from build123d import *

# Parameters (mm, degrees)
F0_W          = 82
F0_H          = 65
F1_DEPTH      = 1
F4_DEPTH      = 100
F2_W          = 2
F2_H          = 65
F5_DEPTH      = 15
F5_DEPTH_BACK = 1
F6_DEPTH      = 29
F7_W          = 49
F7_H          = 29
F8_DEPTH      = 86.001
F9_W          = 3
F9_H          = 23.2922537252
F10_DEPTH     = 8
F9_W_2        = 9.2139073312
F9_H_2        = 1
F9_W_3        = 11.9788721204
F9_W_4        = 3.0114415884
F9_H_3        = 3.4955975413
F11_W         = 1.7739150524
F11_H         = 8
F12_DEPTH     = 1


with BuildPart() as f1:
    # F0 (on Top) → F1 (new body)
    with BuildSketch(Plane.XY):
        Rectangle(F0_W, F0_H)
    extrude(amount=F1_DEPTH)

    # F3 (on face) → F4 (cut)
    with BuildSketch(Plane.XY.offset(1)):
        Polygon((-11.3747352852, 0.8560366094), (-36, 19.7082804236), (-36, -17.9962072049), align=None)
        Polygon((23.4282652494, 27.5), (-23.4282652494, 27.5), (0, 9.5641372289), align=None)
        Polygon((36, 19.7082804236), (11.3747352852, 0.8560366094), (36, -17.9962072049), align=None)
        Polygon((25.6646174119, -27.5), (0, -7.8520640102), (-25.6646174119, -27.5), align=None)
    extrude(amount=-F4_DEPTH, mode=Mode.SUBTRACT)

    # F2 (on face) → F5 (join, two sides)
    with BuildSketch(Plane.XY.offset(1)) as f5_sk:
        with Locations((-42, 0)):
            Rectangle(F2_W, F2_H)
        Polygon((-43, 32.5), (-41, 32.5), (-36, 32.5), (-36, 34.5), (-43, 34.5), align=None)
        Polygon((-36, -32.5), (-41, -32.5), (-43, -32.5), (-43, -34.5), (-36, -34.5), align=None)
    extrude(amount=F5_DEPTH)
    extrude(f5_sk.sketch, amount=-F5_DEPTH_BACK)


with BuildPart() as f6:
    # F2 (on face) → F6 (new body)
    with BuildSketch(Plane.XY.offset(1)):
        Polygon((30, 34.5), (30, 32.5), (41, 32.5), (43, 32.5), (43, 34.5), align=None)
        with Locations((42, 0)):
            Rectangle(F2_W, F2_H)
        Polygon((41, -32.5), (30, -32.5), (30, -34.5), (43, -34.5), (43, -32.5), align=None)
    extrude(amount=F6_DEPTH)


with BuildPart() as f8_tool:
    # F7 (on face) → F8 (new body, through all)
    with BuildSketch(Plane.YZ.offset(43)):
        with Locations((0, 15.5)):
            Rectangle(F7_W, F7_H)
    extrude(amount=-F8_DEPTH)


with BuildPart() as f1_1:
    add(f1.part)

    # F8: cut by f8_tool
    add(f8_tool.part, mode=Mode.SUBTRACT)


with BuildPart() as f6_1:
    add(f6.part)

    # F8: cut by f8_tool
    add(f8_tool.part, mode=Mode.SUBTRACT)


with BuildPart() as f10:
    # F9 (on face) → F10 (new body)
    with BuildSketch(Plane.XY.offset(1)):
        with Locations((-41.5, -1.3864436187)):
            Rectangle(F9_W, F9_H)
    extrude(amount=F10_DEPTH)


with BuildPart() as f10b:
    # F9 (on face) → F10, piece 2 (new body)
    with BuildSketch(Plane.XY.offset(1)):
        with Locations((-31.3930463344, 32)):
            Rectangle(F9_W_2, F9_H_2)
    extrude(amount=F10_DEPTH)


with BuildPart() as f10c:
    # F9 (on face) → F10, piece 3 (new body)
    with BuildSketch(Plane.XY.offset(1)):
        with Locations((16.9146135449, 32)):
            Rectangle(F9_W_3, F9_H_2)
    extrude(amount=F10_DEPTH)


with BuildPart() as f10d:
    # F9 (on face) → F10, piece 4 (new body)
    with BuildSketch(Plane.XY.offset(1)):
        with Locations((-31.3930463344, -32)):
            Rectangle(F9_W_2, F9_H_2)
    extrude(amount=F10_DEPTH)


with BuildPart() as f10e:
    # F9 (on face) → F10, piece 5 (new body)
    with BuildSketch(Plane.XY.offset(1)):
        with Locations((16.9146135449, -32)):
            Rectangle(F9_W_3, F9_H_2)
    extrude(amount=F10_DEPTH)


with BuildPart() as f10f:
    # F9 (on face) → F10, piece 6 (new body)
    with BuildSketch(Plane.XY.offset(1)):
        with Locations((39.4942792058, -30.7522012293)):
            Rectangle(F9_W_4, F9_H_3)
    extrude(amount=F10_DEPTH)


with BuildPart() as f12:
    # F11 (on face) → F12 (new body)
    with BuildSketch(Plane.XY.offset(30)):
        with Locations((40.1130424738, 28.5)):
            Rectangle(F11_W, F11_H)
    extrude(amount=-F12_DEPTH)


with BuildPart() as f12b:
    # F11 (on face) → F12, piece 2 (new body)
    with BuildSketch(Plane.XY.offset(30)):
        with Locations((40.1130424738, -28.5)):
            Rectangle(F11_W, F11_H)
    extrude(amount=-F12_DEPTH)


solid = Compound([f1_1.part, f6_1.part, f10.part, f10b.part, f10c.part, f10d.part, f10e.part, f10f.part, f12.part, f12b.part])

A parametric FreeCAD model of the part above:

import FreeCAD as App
import Part
import Sketcher
from FreeCAD import Vector
Q = App.Units.Quantity

doc = App.newDocument("Part")
body = doc.addObject("PartDesign::Body", "Body")

# Sketch on XY plane
sketch1 = doc.addObject("Sketcher::SketchObject", "Sketch")
body.addObject(sketch1)
sketch1.AttachmentSupport = (doc.XY_Plane, [""])
sketch1.MapMode = "FlatFace"
sketch1.addGeometry([
    Part.LineSegment(Vector(-41, 32, 0), Vector(-41, -32, 0)),
    Part.LineSegment(Vector(-41, -32, 0), Vector(41, -32, 0)),
    Part.LineSegment(Vector(41, -32, 0), Vector(41, 32, 0)),
    Part.LineSegment(Vector(41, 32, 0), Vector(-41, 32, 0)),
], False)
sketch1.addConstraint([
    Sketcher.Constraint("Coincident", 0, 2, 1, 1),
    Sketcher.Constraint("Coincident", 1, 2, 2, 1),
    Sketcher.Constraint("Coincident", 2, 2, 3, 1),
    Sketcher.Constraint("Coincident", 3, 2, 0, 1),
    Sketcher.Constraint("Vertical", 0),
    Sketcher.Constraint("Horizontal", 1),
    Sketcher.Constraint("Vertical", 2),
    Sketcher.Constraint("Horizontal", 3),
    Sketcher.Constraint("Symmetric", 0, 2, 2, 2, -1, 1),
    Sketcher.Constraint("DistanceX", 1, 1, 1, 2, Q("82 mm")),
    Sketcher.Constraint("DistanceY", 0, 2, 0, 1, Q("65 mm")),
])
pad1 = doc.addObject("PartDesign::Pad", "Pad")
body.addObject(pad1)
pad1.Profile = sketch1
pad1.Length = 1

# Sketch on XY plane
sketch2 = doc.addObject("Sketcher::SketchObject", "Sketch001")
body.addObject(sketch2)
sketch2.AttachmentSupport = (doc.XY_Plane, [""])
sketch2.MapMode = "FlatFace"
sketch2.AttachmentOffset = App.Placement(Vector(0, 0, 1), App.Rotation())
sketch2.addGeometry([
    Part.LineSegment(Vector(-11, 1, 0), Vector(-36, 20, 0)),  # 0
    Part.LineSegment(Vector(-36, 20, 0), Vector(-36, -18, 0)),  # 1
    Part.LineSegment(Vector(-36, -18, 0), Vector(-11, 1, 0)),  # 2
    Part.LineSegment(Vector(23, 28, 0), Vector(-23, 28, 0)),  # 3
    Part.LineSegment(Vector(-23, 28, 0), Vector(0, 10, 0)),  # 4
    Part.LineSegment(Vector(0, 10, 0), Vector(23, 28, 0)),  # 5
    Part.LineSegment(Vector(36, 20, 0), Vector(11, 1, 0)),  # 6
    Part.LineSegment(Vector(11, 1, 0), Vector(36, -18, 0)),  # 7
    Part.LineSegment(Vector(36, -18, 0), Vector(36, 20, 0)),  # 8
    Part.LineSegment(Vector(26, -28, 0), Vector(0, -8, 0)),  # 9
    Part.LineSegment(Vector(0, -8, 0), Vector(-26, -28, 0)),  # 10
    Part.LineSegment(Vector(-26, -28, 0), Vector(26, -28, 0)),  # 11
], False)
sketch2.addConstraint([
    Sketcher.Constraint("Coincident", 0, 2, 1, 1),
    Sketcher.Constraint("Coincident", 1, 2, 2, 1),
    Sketcher.Constraint("Coincident", 2, 2, 0, 1),
    Sketcher.Constraint("Coincident", 3, 2, 4, 1),
    Sketcher.Constraint("Coincident", 4, 2, 5, 1),
    Sketcher.Constraint("Coincident", 5, 2, 3, 1),
    Sketcher.Constraint("Coincident", 6, 2, 7, 1),
    Sketcher.Constraint("Coincident", 7, 2, 8, 1),
    Sketcher.Constraint("Coincident", 8, 2, 6, 1),
    Sketcher.Constraint("Coincident", 9, 2, 10, 1),
    Sketcher.Constraint("Coincident", 10, 2, 11, 1),
    Sketcher.Constraint("Coincident", 11, 2, 9, 1),
    Sketcher.Constraint("Vertical", 1),
    Sketcher.Constraint("Horizontal", 3),
    Sketcher.Constraint("Vertical", 8),
    Sketcher.Constraint("Horizontal", 11),
    Sketcher.Constraint("Symmetric", 2, 2, 6, 2, -2),
    Sketcher.Constraint("Symmetric", 1, 2, 7, 2, -2),
    Sketcher.Constraint("PointOnObject", 4, 2, -2),
    Sketcher.Constraint("PointOnObject", 9, 2, -2),
    Sketcher.Constraint("Parallel", 0, 4),
    Sketcher.Constraint("Parallel", 2, 5),
    Sketcher.Constraint("Parallel", 5, 6),
    Sketcher.Constraint("Parallel", 4, 7),
    Sketcher.Constraint("Parallel", 7, 9),
    Sketcher.Constraint("Parallel", 6, 10),
    Sketcher.Constraint("DistanceX", 0, 2, -1, 1, Q("36 mm")),
    Sketcher.Constraint("DistanceY", -1, 1, 3, 2, Q("27.5 mm")),
    Sketcher.Constraint("DistanceY", 10, 2, -1, 1, Q("27.5 mm")),
    Sketcher.Constraint("DistanceX", 2, 2, 5, 2, Q("34.803001 mm")),
    Sketcher.Constraint("DistanceX", 3, 2, 3, 1, Q("46.85653 mm")),
    Sketcher.Constraint("DistanceY", 2, 2, 4, 2, Q("8.708101 mm")),
    Sketcher.Constraint("DistanceY", 9, 2, 2, 2, Q("8.708101 mm")),
    Sketcher.Constraint("DistanceX", 11, 1, 11, 2, Q("51.329235 mm")),
])
pocket1 = doc.addObject("PartDesign::Pocket", "Pocket")
body.addObject(pocket1)
pocket1.Profile = sketch2
pocket1.Length = 100

# Sketch on XY plane
sketch3 = doc.addObject("Sketcher::SketchObject", "Sketch002")
body.addObject(sketch3)
sketch3.AttachmentSupport = (doc.XY_Plane, [""])
sketch3.MapMode = "FlatFace"
sketch3.AttachmentOffset = App.Placement(Vector(0, 0, 1), App.Rotation())
sketch3.addGeometry([
    Part.LineSegment(Vector(-41, -32.5, 0), Vector(-41, 32.5, 0)),  # 0
    Part.LineSegment(Vector(-41, 32.5, 0), Vector(-36, 32.5, 0)),  # 1
    Part.LineSegment(Vector(-36, 32.5, 0), Vector(-36, 34.5, 0)),  # 2
    Part.LineSegment(Vector(-36, 34.5, 0), Vector(-43, 34.5, 0)),  # 3
    Part.LineSegment(Vector(-43, 34.5, 0), Vector(-43, -34.5, 0)),  # 4
    Part.LineSegment(Vector(-43, -34.5, 0), Vector(-36, -34.5, 0)),  # 5
    Part.LineSegment(Vector(-36, -34.5, 0), Vector(-36, -32.5, 0)),  # 6
    Part.LineSegment(Vector(-36, -32.5, 0), Vector(-41, -32.5, 0)),  # 7
], False)
sketch3.addConstraint([
    Sketcher.Constraint("Coincident", 0, 2, 1, 1),
    Sketcher.Constraint("Coincident", 1, 2, 2, 1),
    Sketcher.Constraint("Coincident", 2, 2, 3, 1),
    Sketcher.Constraint("Coincident", 3, 2, 4, 1),
    Sketcher.Constraint("Coincident", 4, 2, 5, 1),
    Sketcher.Constraint("Coincident", 5, 2, 6, 1),
    Sketcher.Constraint("Coincident", 6, 2, 7, 1),
    Sketcher.Constraint("Coincident", 7, 2, 0, 1),
    Sketcher.Constraint("Vertical", 0),
    Sketcher.Constraint("Horizontal", 1),
    Sketcher.Constraint("Vertical", 2),
    Sketcher.Constraint("Horizontal", 3),
    Sketcher.Constraint("Vertical", 4),
    Sketcher.Constraint("Horizontal", 5),
    Sketcher.Constraint("Vertical", 6),
    Sketcher.Constraint("Horizontal", 7),
    Sketcher.Constraint("Symmetric", 2, 2, 5, 2, -1),
    Sketcher.Constraint("Equal", 2, 6),
    Sketcher.Constraint("DistanceX", 1, 1, 1, 2, Q("5 mm")),
    Sketcher.Constraint("DistanceX", 3, 2, 3, 1, Q("7 mm")),
    Sketcher.Constraint("DistanceY", 0, 1, 0, 2, Q("65 mm")),
    Sketcher.Constraint("DistanceY", 2, 1, 2, 2, Q("2 mm")),
    Sketcher.Constraint("DistanceX", 0, 2, -1, 1, Q("41 mm")),
])
pad2 = doc.addObject("PartDesign::Pad", "Pad001")
body.addObject(pad2)
pad2.Profile = sketch3
pad2.Type = "TwoLengths"
pad2.Length = 15
pad2.Length2 = 1
body2 = doc.addObject("PartDesign::Body", "Body001")

# Sketch on XY plane
sketch4 = doc.addObject("Sketcher::SketchObject", "Sketch003")
body2.addObject(sketch4)
sketch4.AttachmentSupport = (doc.getObject("XY_Plane001"), [""])
sketch4.MapMode = "FlatFace"
sketch4.AttachmentOffset = App.Placement(Vector(0, 0, 1), App.Rotation())
sketch4.addGeometry([
    Part.LineSegment(Vector(30, 34.5, 0), Vector(30, 32.5, 0)),  # 0
    Part.LineSegment(Vector(30, 32.5, 0), Vector(41, 32.5, 0)),  # 1
    Part.LineSegment(Vector(41, 32.5, 0), Vector(41, -32.5, 0)),  # 2
    Part.LineSegment(Vector(41, -32.5, 0), Vector(30, -32.5, 0)),  # 3
    Part.LineSegment(Vector(30, -32.5, 0), Vector(30, -34.5, 0)),  # 4
    Part.LineSegment(Vector(30, -34.5, 0), Vector(43, -34.5, 0)),  # 5
    Part.LineSegment(Vector(43, -34.5, 0), Vector(43, 34.5, 0)),  # 6
    Part.LineSegment(Vector(43, 34.5, 0), Vector(30, 34.5, 0)),  # 7
], False)
sketch4.addConstraint([
    Sketcher.Constraint("Coincident", 0, 2, 1, 1),
    Sketcher.Constraint("Coincident", 1, 2, 2, 1),
    Sketcher.Constraint("Coincident", 2, 2, 3, 1),
    Sketcher.Constraint("Coincident", 3, 2, 4, 1),
    Sketcher.Constraint("Coincident", 4, 2, 5, 1),
    Sketcher.Constraint("Coincident", 5, 2, 6, 1),
    Sketcher.Constraint("Coincident", 6, 2, 7, 1),
    Sketcher.Constraint("Coincident", 7, 2, 0, 1),
    Sketcher.Constraint("Vertical", 0),
    Sketcher.Constraint("Horizontal", 1),
    Sketcher.Constraint("Vertical", 2),
    Sketcher.Constraint("Horizontal", 3),
    Sketcher.Constraint("Vertical", 4),
    Sketcher.Constraint("Horizontal", 5),
    Sketcher.Constraint("Vertical", 6),
    Sketcher.Constraint("Horizontal", 7),
    Sketcher.Constraint("Symmetric", 0, 2, 3, 2, -1),
    Sketcher.Constraint("Equal", 0, 4),
    Sketcher.Constraint("DistanceX", 1, 1, 1, 2, Q("11 mm")),
    Sketcher.Constraint("DistanceX", 5, 1, 5, 2, Q("13 mm")),
    Sketcher.Constraint("DistanceY", 0, 2, 0, 1, Q("2 mm")),
    Sketcher.Constraint("DistanceY", 2, 2, 2, 1, Q("65 mm")),
    Sketcher.Constraint("DistanceX", -1, 1, 0, 2, Q("30 mm")),
])
pad3 = doc.addObject("PartDesign::Pad", "Pad002")
body2.addObject(pad3)
pad3.Profile = sketch4
pad3.Length = 29
body3 = doc.addObject("PartDesign::Body", "Body002")

# Sketch on YZ plane
sketch5 = doc.addObject("Sketcher::SketchObject", "Sketch004")
body3.addObject(sketch5)
sketch5.AttachmentSupport = (doc.getObject("YZ_Plane002"), [""])
sketch5.MapMode = "FlatFace"
sketch5.AttachmentOffset = App.Placement(Vector(0, 0, 43), App.Rotation())
sketch5.addGeometry([
    Part.LineSegment(Vector(-24, 30, 0), Vector(-24, 1, 0)),
    Part.LineSegment(Vector(-24, 1, 0), Vector(24, 1, 0)),
    Part.LineSegment(Vector(24, 1, 0), Vector(24, 30, 0)),
    Part.LineSegment(Vector(24, 30, 0), Vector(-24, 30, 0)),
], False)
sketch5.addConstraint([
    Sketcher.Constraint("Coincident", 0, 2, 1, 1),
    Sketcher.Constraint("Coincident", 1, 2, 2, 1),
    Sketcher.Constraint("Coincident", 2, 2, 3, 1),
    Sketcher.Constraint("Coincident", 3, 2, 0, 1),
    Sketcher.Constraint("Vertical", 0),
    Sketcher.Constraint("Horizontal", 1),
    Sketcher.Constraint("Vertical", 2),
    Sketcher.Constraint("Horizontal", 3),
    Sketcher.Constraint("DistanceX", 1, 1, 1, 2, Q("49 mm")),
    Sketcher.Constraint("DistanceY", 0, 2, 0, 1, Q("29 mm")),
    Sketcher.Constraint("DistanceY", -1, 1, 0, 2, Q("1 mm")),
    Sketcher.Constraint("DistanceX", 0, 2, -1, 1, Q("24.5 mm")),
])
pad4 = doc.addObject("PartDesign::Pad", "Pad003")
body3.addObject(pad4)
pad4.Profile = sketch5
pad4.Length = 86.001
pad4.Reversed = True
doc.recompute()

body4 = doc.addObject("PartDesign::Body", "Body003")
body4.BaseFeature = body3
boolean = doc.addObject("PartDesign::Boolean", "Boolean")
body.addObject(boolean)
boolean.Type = "Cut"
boolean.addObjects([body4])
doc.recompute()
body2.AllowCompound = True
doc.recompute()

boolean2 = doc.addObject("PartDesign::Boolean", "Boolean001")
body2.addObject(boolean2)
boolean2.Type = "Cut"
boolean2.addObjects([body3])
body5 = doc.addObject("PartDesign::Body", "Body004")

# Sketch on XY plane
sketch6 = doc.addObject("Sketcher::SketchObject", "Sketch005")
body5.addObject(sketch6)
sketch6.AttachmentSupport = (doc.getObject("XY_Plane004"), [""])
sketch6.MapMode = "FlatFace"
sketch6.AttachmentOffset = App.Placement(Vector(0, 0, 1), App.Rotation())
sketch6.addGeometry([
    Part.LineSegment(Vector(-43, 10.3, 0), Vector(-43, -13, 0)),
    Part.LineSegment(Vector(-43, -13, 0), Vector(-40, -13, 0)),
    Part.LineSegment(Vector(-40, -13, 0), Vector(-40, 10.3, 0)),
    Part.LineSegment(Vector(-40, 10.3, 0), Vector(-43, 10.3, 0)),
], False)
sketch6.addConstraint([
    Sketcher.Constraint("Coincident", 0, 2, 1, 1),
    Sketcher.Constraint("Coincident", 1, 2, 2, 1),
    Sketcher.Constraint("Coincident", 2, 2, 3, 1),
    Sketcher.Constraint("Coincident", 3, 2, 0, 1),
    Sketcher.Constraint("Vertical", 0),
    Sketcher.Constraint("Horizontal", 1),
    Sketcher.Constraint("Vertical", 2),
    Sketcher.Constraint("Horizontal", 3),
    Sketcher.Constraint("DistanceX", 1, 1, 1, 2, Q("3 mm")),
    Sketcher.Constraint("DistanceX", 0, 2, -1, 1, Q("43 mm")),
    Sketcher.Constraint("DistanceY", 0, 2, 0, 1, Q("23.292254 mm")),
    Sketcher.Constraint("DistanceY", 0, 2, -1, 1, Q("13.03257 mm")),
])
pad5 = doc.addObject("PartDesign::Pad", "Pad004")
body5.addObject(pad5)
pad5.Profile = sketch6
pad5.Length = 8
body6 = doc.addObject("PartDesign::Body", "Body005")

# Sketch on XY plane
sketch7 = doc.addObject("Sketcher::SketchObject", "Sketch006")
body6.addObject(sketch7)
sketch7.AttachmentSupport = (doc.getObject("XY_Plane005"), [""])
sketch7.MapMode = "FlatFace"
sketch7.AttachmentOffset = App.Placement(Vector(0, 0, 1), App.Rotation())
sketch7.addGeometry([
    Part.LineSegment(Vector(-36, 32.5, 0), Vector(-36, 31.5, 0)),
    Part.LineSegment(Vector(-36, 31.5, 0), Vector(-26.8, 31.5, 0)),
    Part.LineSegment(Vector(-26.8, 31.5, 0), Vector(-26.8, 32.5, 0)),
    Part.LineSegment(Vector(-26.8, 32.5, 0), Vector(-36, 32.5, 0)),
], False)
sketch7.addConstraint([
    Sketcher.Constraint("Coincident", 0, 2, 1, 1),
    Sketcher.Constraint("Coincident", 1, 2, 2, 1),
    Sketcher.Constraint("Coincident", 2, 2, 3, 1),
    Sketcher.Constraint("Coincident", 3, 2, 0, 1),
    Sketcher.Constraint("Vertical", 0),
    Sketcher.Constraint("Horizontal", 1),
    Sketcher.Constraint("Vertical", 2),
    Sketcher.Constraint("Horizontal", 3),
    Sketcher.Constraint("DistanceY", 0, 2, 0, 1, Q("1 mm")),
    Sketcher.Constraint("DistanceX", 0, 2, -1, 1, Q("36 mm")),
    Sketcher.Constraint("DistanceY", -1, 1, 0, 2, Q("31.5 mm")),
    Sketcher.Constraint("DistanceX", 1, 1, 1, 2, Q("9.213907 mm")),
])
pad6 = doc.addObject("PartDesign::Pad", "Pad005")
body6.addObject(pad6)
pad6.Profile = sketch7
pad6.Length = 8
body7 = doc.addObject("PartDesign::Body", "Body006")

# Sketch on XY plane
sketch8 = doc.addObject("Sketcher::SketchObject", "Sketch007")
body7.addObject(sketch8)
sketch8.AttachmentSupport = (doc.getObject("XY_Plane006"), [""])
sketch8.MapMode = "FlatFace"
sketch8.AttachmentOffset = App.Placement(Vector(0, 0, 1), App.Rotation())
sketch8.addGeometry([
    Part.LineSegment(Vector(10.9, 32.5, 0), Vector(10.9, 31.5, 0)),
    Part.LineSegment(Vector(10.9, 31.5, 0), Vector(22.9, 31.5, 0)),
    Part.LineSegment(Vector(22.9, 31.5, 0), Vector(22.9, 32.5, 0)),
    Part.LineSegment(Vector(22.9, 32.5, 0), Vector(10.9, 32.5, 0)),
], False)
sketch8.addConstraint([
    Sketcher.Constraint("Coincident", 0, 2, 1, 1),
    Sketcher.Constraint("Coincident", 1, 2, 2, 1),
    Sketcher.Constraint("Coincident", 2, 2, 3, 1),
    Sketcher.Constraint("Coincident", 3, 2, 0, 1),
    Sketcher.Constraint("Vertical", 0),
    Sketcher.Constraint("Horizontal", 1),
    Sketcher.Constraint("Vertical", 2),
    Sketcher.Constraint("Horizontal", 3),
    Sketcher.Constraint("DistanceY", 0, 2, 0, 1, Q("1 mm")),
    Sketcher.Constraint("DistanceY", -1, 1, 0, 2, Q("31.5 mm")),
    Sketcher.Constraint("DistanceX", 1, 1, 1, 2, Q("11.978872 mm")),
    Sketcher.Constraint("DistanceX", -1, 1, 1, 2, Q("22.90405 mm")),
])
pad7 = doc.addObject("PartDesign::Pad", "Pad006")
body7.addObject(pad7)
pad7.Profile = sketch8
pad7.Length = 8
body8 = doc.addObject("PartDesign::Body", "Body007")

# Sketch on XY plane
sketch9 = doc.addObject("Sketcher::SketchObject", "Sketch008")
body8.addObject(sketch9)
sketch9.AttachmentSupport = (doc.getObject("XY_Plane007"), [""])
sketch9.MapMode = "FlatFace"
sketch9.AttachmentOffset = App.Placement(Vector(0, 0, 1), App.Rotation())
sketch9.addGeometry([
    Part.LineSegment(Vector(-36, -31.5, 0), Vector(-36, -32.5, 0)),
    Part.LineSegment(Vector(-36, -32.5, 0), Vector(-26.8, -32.5, 0)),
    Part.LineSegment(Vector(-26.8, -32.5, 0), Vector(-26.8, -31.5, 0)),
    Part.LineSegment(Vector(-26.8, -31.5, 0), Vector(-36, -31.5, 0)),
], False)
sketch9.addConstraint([
    Sketcher.Constraint("Coincident", 0, 2, 1, 1),
    Sketcher.Constraint("Coincident", 1, 2, 2, 1),
    Sketcher.Constraint("Coincident", 2, 2, 3, 1),
    Sketcher.Constraint("Coincident", 3, 2, 0, 1),
    Sketcher.Constraint("Vertical", 0),
    Sketcher.Constraint("Horizontal", 1),
    Sketcher.Constraint("Vertical", 2),
    Sketcher.Constraint("Horizontal", 3),
    Sketcher.Constraint("DistanceY", 0, 2, 0, 1, Q("1 mm")),
    Sketcher.Constraint("DistanceX", 0, 2, -1, 1, Q("36 mm")),
    Sketcher.Constraint("DistanceY", 0, 2, -1, 1, Q("32.5 mm")),
    Sketcher.Constraint("DistanceX", 1, 1, 1, 2, Q("9.213907 mm")),
])
pad8 = doc.addObject("PartDesign::Pad", "Pad007")
body8.addObject(pad8)
pad8.Profile = sketch9
pad8.Length = 8
body9 = doc.addObject("PartDesign::Body", "Body008")

# Sketch on XY plane
sketch10 = doc.addObject("Sketcher::SketchObject", "Sketch009")
body9.addObject(sketch10)
sketch10.AttachmentSupport = (doc.getObject("XY_Plane008"), [""])
sketch10.MapMode = "FlatFace"
sketch10.AttachmentOffset = App.Placement(Vector(0, 0, 1), App.Rotation())
sketch10.addGeometry([
    Part.LineSegment(Vector(10.9, -31.5, 0), Vector(10.9, -32.5, 0)),
    Part.LineSegment(Vector(10.9, -32.5, 0), Vector(22.9, -32.5, 0)),
    Part.LineSegment(Vector(22.9, -32.5, 0), Vector(22.9, -31.5, 0)),
    Part.LineSegment(Vector(22.9, -31.5, 0), Vector(10.9, -31.5, 0)),
], False)
sketch10.addConstraint([
    Sketcher.Constraint("Coincident", 0, 2, 1, 1),
    Sketcher.Constraint("Coincident", 1, 2, 2, 1),
    Sketcher.Constraint("Coincident", 2, 2, 3, 1),
    Sketcher.Constraint("Coincident", 3, 2, 0, 1),
    Sketcher.Constraint("Vertical", 0),
    Sketcher.Constraint("Horizontal", 1),
    Sketcher.Constraint("Vertical", 2),
    Sketcher.Constraint("Horizontal", 3),
    Sketcher.Constraint("DistanceY", 0, 2, 0, 1, Q("1 mm")),
    Sketcher.Constraint("DistanceY", 0, 2, -1, 1, Q("32.5 mm")),
    Sketcher.Constraint("DistanceX", 1, 1, 1, 2, Q("11.978872 mm")),
    Sketcher.Constraint("DistanceX", -1, 1, 1, 2, Q("22.90405 mm")),
])
pad9 = doc.addObject("PartDesign::Pad", "Pad008")
body9.addObject(pad9)
pad9.Profile = sketch10
pad9.Length = 8
body10 = doc.addObject("PartDesign::Body", "Body009")

# Sketch on XY plane
sketch11 = doc.addObject("Sketcher::SketchObject", "Sketch010")
body10.addObject(sketch11)
sketch11.AttachmentSupport = (doc.getObject("XY_Plane009"), [""])
sketch11.MapMode = "FlatFace"
sketch11.AttachmentOffset = App.Placement(Vector(0, 0, 1), App.Rotation())
sketch11.addGeometry([
    Part.LineSegment(Vector(38, -29, 0), Vector(38, -32.5, 0)),
    Part.LineSegment(Vector(38, -32.5, 0), Vector(41, -32.5, 0)),
    Part.LineSegment(Vector(41, -32.5, 0), Vector(41, -29, 0)),
    Part.LineSegment(Vector(41, -29, 0), Vector(38, -29, 0)),
], False)
sketch11.addConstraint([
    Sketcher.Constraint("Coincident", 0, 2, 1, 1),
    Sketcher.Constraint("Coincident", 1, 2, 2, 1),
    Sketcher.Constraint("Coincident", 2, 2, 3, 1),
    Sketcher.Constraint("Coincident", 3, 2, 0, 1),
    Sketcher.Constraint("Vertical", 0),
    Sketcher.Constraint("Horizontal", 1),
    Sketcher.Constraint("Vertical", 2),
    Sketcher.Constraint("Horizontal", 3),
    Sketcher.Constraint("DistanceX", -1, 1, 1, 2, Q("41 mm")),
    Sketcher.Constraint("DistanceY", 0, 2, -1, 1, Q("32.5 mm")),
    Sketcher.Constraint("DistanceX", 1, 1, 1, 2, Q("3.011442 mm")),
    Sketcher.Constraint("DistanceY", 0, 2, 0, 1, Q("3.495598 mm")),
])
pad10 = doc.addObject("PartDesign::Pad", "Pad009")
body10.addObject(pad10)
pad10.Profile = sketch11
pad10.Length = 8
body11 = doc.addObject("PartDesign::Body", "Body010")

# Sketch on XY plane
sketch12 = doc.addObject("Sketcher::SketchObject", "Sketch011")
body11.addObject(sketch12)
sketch12.AttachmentSupport = (doc.getObject("XY_Plane010"), [""])
sketch12.MapMode = "FlatFace"
sketch12.AttachmentOffset = App.Placement(Vector(0, 0, 30), App.Rotation())
sketch12.addGeometry([
    Part.LineSegment(Vector(39.2, 32.5, 0), Vector(39.2, 24.5, 0)),
    Part.LineSegment(Vector(39.2, 24.5, 0), Vector(41, 24.5, 0)),
    Part.LineSegment(Vector(41, 24.5, 0), Vector(41, 32.5, 0)),
    Part.LineSegment(Vector(41, 32.5, 0), Vector(39.2, 32.5, 0)),
], False)
sketch12.addConstraint([
    Sketcher.Constraint("Coincident", 0, 2, 1, 1),
    Sketcher.Constraint("Coincident", 1, 2, 2, 1),
    Sketcher.Constraint("Coincident", 2, 2, 3, 1),
    Sketcher.Constraint("Coincident", 3, 2, 0, 1),
    Sketcher.Constraint("Vertical", 0),
    Sketcher.Constraint("Horizontal", 1),
    Sketcher.Constraint("Vertical", 2),
    Sketcher.Constraint("Horizontal", 3),
    Sketcher.Constraint("DistanceY", 0, 2, 0, 1, Q("8 mm")),
    Sketcher.Constraint("DistanceX", -1, 1, 1, 2, Q("41 mm")),
    Sketcher.Constraint("DistanceY", -1, 1, 0, 2, Q("24.5 mm")),
    Sketcher.Constraint("DistanceX", 1, 1, 1, 2, Q("1.773915 mm")),
])
pad11 = doc.addObject("PartDesign::Pad", "Pad010")
body11.addObject(pad11)
pad11.Profile = sketch12
pad11.Length = 1
pad11.Reversed = True
body12 = doc.addObject("PartDesign::Body", "Body011")

# Sketch on XY plane
sketch13 = doc.addObject("Sketcher::SketchObject", "Sketch012")
body12.addObject(sketch13)
sketch13.AttachmentSupport = (doc.getObject("XY_Plane011"), [""])
sketch13.MapMode = "FlatFace"
sketch13.AttachmentOffset = App.Placement(Vector(0, 0, 30), App.Rotation())
sketch13.addGeometry([
    Part.LineSegment(Vector(39.2, -24.5, 0), Vector(39.2, -32.5, 0)),
    Part.LineSegment(Vector(39.2, -32.5, 0), Vector(41, -32.5, 0)),
    Part.LineSegment(Vector(41, -32.5, 0), Vector(41, -24.5, 0)),
    Part.LineSegment(Vector(41, -24.5, 0), Vector(39.2, -24.5, 0)),
], False)
sketch13.addConstraint([
    Sketcher.Constraint("Coincident", 0, 2, 1, 1),
    Sketcher.Constraint("Coincident", 1, 2, 2, 1),
    Sketcher.Constraint("Coincident", 2, 2, 3, 1),
    Sketcher.Constraint("Coincident", 3, 2, 0, 1),
    Sketcher.Constraint("Vertical", 0),
    Sketcher.Constraint("Horizontal", 1),
    Sketcher.Constraint("Vertical", 2),
    Sketcher.Constraint("Horizontal", 3),
    Sketcher.Constraint("DistanceY", 0, 2, 0, 1, Q("8 mm")),
    Sketcher.Constraint("DistanceX", -1, 1, 1, 2, Q("41 mm")),
    Sketcher.Constraint("DistanceY", 0, 2, -1, 1, Q("32.5 mm")),
    Sketcher.Constraint("DistanceX", 1, 1, 1, 2, Q("1.773915 mm")),
])
pad12 = doc.addObject("PartDesign::Pad", "Pad011")
body12.addObject(pad12)
pad12.Profile = sketch13
pad12.Length = 1
pad12.Reversed = True

doc.recompute()
